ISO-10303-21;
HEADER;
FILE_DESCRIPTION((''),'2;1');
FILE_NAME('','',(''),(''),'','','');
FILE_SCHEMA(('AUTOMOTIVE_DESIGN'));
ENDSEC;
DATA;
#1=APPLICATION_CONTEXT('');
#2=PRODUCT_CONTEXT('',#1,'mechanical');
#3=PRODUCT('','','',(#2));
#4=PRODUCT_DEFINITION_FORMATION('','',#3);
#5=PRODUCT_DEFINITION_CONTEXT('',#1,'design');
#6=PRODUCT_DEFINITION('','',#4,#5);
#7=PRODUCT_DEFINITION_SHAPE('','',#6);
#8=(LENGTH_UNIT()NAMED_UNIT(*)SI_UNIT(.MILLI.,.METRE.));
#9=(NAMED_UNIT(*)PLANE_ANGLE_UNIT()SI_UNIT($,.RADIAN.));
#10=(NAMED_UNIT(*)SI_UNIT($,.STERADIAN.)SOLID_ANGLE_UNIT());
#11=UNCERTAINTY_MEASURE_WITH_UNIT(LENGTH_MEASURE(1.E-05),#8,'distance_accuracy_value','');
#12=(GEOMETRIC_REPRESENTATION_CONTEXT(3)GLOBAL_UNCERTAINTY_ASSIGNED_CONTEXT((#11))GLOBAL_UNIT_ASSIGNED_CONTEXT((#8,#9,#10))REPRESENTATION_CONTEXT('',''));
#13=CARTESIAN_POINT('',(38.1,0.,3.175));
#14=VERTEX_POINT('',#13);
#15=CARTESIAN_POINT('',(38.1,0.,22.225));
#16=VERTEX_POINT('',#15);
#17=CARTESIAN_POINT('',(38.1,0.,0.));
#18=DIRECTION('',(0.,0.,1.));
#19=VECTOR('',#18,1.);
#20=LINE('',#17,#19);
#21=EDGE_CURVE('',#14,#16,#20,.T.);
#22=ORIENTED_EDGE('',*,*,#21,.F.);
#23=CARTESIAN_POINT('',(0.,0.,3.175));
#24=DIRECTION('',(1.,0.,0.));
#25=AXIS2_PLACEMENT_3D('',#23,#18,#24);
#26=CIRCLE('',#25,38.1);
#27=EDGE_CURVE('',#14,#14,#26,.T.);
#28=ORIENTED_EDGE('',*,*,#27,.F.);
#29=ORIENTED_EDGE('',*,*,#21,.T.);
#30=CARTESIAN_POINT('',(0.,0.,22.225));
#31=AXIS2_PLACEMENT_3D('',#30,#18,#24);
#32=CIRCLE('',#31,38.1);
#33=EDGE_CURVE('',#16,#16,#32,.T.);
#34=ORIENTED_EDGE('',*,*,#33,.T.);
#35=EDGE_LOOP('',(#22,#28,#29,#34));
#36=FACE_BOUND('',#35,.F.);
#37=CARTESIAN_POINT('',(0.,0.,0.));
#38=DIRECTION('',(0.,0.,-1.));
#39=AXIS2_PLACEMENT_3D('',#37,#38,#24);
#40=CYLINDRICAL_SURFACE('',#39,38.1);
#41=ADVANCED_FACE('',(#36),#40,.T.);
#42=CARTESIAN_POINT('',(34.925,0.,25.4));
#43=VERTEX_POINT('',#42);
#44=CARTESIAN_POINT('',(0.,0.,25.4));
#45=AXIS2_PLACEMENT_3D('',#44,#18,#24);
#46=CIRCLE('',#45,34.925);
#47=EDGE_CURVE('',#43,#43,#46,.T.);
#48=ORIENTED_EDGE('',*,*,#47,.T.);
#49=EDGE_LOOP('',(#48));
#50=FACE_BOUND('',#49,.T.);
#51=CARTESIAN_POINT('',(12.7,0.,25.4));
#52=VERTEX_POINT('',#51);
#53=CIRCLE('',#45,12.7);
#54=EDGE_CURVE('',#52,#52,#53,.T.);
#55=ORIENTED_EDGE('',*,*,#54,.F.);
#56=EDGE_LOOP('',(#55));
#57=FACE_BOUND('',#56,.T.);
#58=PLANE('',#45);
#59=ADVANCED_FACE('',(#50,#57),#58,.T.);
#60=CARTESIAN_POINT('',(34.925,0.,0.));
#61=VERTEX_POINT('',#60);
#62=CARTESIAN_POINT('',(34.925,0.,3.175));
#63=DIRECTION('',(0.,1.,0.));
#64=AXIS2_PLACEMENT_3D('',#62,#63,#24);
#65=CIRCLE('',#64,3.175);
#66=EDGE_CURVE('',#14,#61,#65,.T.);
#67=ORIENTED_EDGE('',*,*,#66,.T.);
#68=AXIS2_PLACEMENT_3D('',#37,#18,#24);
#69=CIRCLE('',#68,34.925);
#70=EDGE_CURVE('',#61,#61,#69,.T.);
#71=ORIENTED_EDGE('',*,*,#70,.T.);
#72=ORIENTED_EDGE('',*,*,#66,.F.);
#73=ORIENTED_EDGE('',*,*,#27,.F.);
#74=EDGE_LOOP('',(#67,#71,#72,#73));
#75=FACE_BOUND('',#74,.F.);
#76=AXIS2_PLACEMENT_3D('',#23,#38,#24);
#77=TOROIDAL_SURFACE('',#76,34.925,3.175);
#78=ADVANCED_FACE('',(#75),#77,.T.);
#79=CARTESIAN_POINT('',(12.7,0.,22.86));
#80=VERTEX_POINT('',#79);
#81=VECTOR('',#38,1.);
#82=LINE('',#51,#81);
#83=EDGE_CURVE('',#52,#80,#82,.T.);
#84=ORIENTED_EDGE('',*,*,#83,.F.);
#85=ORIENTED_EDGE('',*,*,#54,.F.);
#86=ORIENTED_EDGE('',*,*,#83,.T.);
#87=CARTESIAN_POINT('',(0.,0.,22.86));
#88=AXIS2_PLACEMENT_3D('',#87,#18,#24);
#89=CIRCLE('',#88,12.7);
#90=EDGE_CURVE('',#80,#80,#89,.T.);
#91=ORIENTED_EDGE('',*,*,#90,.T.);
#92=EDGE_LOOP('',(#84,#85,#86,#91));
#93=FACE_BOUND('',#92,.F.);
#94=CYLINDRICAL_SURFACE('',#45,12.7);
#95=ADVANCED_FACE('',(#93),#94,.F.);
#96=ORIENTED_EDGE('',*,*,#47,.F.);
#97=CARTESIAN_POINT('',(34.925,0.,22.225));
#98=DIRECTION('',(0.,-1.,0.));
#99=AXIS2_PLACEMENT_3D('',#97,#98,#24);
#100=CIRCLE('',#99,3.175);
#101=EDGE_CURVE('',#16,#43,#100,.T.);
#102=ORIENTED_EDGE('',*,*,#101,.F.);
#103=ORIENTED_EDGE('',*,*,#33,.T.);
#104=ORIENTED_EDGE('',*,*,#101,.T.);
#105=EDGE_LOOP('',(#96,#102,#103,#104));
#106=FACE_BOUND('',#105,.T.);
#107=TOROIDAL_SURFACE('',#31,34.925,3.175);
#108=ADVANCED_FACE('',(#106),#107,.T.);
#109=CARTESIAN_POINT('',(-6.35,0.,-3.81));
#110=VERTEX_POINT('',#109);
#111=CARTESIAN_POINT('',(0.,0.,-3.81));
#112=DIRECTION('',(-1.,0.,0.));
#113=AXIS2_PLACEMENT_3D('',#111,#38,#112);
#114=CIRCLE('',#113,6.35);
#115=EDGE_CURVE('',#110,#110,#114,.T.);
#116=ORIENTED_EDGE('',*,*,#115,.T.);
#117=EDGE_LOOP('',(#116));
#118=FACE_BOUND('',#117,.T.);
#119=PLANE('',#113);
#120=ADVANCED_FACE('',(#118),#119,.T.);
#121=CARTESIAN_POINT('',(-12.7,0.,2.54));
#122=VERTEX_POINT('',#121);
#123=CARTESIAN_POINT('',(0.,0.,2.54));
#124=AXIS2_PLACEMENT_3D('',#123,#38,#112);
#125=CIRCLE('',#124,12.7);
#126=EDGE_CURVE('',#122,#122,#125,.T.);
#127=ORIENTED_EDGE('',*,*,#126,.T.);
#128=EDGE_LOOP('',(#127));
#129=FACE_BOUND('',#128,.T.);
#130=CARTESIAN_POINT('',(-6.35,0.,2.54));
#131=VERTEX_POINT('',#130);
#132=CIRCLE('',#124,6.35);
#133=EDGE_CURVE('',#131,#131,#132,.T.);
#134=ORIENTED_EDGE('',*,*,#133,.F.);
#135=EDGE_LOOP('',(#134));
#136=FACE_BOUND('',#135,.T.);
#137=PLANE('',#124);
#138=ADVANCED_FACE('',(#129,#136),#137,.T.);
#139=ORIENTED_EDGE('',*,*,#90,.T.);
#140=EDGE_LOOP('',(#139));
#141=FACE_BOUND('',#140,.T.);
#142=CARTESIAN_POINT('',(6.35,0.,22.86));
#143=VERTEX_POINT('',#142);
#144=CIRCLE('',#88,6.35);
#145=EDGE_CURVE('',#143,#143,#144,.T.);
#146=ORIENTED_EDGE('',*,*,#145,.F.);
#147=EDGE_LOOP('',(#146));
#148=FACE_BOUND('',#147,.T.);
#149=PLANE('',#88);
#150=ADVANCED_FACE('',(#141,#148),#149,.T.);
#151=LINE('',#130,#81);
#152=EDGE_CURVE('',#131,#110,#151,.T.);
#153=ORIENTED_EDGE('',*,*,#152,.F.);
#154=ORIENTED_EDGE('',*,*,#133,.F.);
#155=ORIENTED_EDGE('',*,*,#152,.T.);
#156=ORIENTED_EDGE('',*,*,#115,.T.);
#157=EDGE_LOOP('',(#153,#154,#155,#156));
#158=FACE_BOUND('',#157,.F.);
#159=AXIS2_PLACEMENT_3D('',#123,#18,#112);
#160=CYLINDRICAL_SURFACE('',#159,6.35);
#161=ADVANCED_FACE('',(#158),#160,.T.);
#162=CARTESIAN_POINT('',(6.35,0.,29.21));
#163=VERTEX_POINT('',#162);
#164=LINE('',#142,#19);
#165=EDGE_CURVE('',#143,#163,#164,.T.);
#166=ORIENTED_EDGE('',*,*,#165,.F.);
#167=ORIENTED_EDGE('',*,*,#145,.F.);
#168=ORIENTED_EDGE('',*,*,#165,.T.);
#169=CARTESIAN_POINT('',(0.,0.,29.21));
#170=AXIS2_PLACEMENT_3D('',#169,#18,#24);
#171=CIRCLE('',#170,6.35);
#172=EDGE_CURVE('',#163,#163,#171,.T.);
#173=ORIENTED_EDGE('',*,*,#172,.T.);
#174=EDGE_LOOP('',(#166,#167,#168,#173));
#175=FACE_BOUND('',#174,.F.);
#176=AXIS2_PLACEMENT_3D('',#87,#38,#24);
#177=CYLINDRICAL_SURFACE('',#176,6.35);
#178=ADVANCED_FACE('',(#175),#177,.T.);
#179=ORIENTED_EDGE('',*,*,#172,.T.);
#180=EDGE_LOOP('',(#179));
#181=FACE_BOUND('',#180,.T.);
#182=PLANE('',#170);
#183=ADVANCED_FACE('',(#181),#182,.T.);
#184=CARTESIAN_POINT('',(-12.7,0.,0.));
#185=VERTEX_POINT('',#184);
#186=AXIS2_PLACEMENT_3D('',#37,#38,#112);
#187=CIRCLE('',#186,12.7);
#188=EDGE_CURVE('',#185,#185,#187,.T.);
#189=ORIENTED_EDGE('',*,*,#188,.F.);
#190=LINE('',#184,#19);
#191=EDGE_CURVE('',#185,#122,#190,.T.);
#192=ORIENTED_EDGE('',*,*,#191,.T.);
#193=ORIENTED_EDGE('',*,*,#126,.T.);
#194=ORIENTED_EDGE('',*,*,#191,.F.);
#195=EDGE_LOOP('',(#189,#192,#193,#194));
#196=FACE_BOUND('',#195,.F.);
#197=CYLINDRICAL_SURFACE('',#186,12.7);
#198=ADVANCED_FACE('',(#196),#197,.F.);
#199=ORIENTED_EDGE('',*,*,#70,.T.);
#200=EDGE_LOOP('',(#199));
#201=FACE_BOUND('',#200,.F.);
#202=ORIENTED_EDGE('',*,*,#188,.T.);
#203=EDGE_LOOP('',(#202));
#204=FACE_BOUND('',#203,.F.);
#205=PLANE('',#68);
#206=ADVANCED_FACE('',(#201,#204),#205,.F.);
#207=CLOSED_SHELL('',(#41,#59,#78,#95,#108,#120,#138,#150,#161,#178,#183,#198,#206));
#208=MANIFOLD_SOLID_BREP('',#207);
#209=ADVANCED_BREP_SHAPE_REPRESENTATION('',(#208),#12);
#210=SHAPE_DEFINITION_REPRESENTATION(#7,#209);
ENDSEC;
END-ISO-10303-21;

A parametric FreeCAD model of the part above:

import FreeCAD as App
import Part
import Sketcher
from FreeCAD import Vector
Q = App.Units.Quantity


def edges_at(feature, points):
    """Names of the edges that pass closest to the given points."""
    edges = feature.Shape.Edges
    near = lambda p: min(range(len(edges)), key=lambda i: edges[i].distToShape(Part.Vertex(*p))[0])
    return sorted({f"Edge{near(p) + 1}" for p in points})

doc = App.newDocument("Part")
body = doc.addObject("PartDesign::Body", "Body")

# Sketch on XY plane
sketch1 = doc.addObject("Sketcher::SketchObject", "Sketch")
body.addObject(sketch1)
sketch1.AttachmentSupport = (doc.XY_Plane, [""])
sketch1.MapMode = "FlatFace"
sketch1.addGeometry(Part.Circle(Vector(0, 0, 0), Vector(0, 0, 1), 38.1), False)
sketch1.addConstraint([
    Sketcher.Constraint("Coincident", 0, 3, -1, 1),
    Sketcher.Constraint("Diameter", 0, Q("3 in")),
])
pad1 = doc.addObject("PartDesign::Pad", "Pad")
body.addObject(pad1)
pad1.Profile = sketch1
pad1.Length = Q("1 in")

# Sketch on XY plane
sketch2 = doc.addObject("Sketcher::SketchObject", "Sketch001")
body.addObject(sketch2)
sketch2.AttachmentSupport = (doc.XY_Plane, [""])
sketch2.MapMode = "FlatFace"
sketch2.AttachmentOffset = App.Placement(Vector(0, 0, 1 * 25.4), App.Rotation())
sketch2.addGeometry(Part.Circle(Vector(0, 0, 0), Vector(0, 0, 1), 12.7), False)
sketch2.addConstraint([
    Sketcher.Constraint("Coincident", 0, 3, -1, 1),
    Sketcher.Constraint("Diameter", 0, Q("1 in")),
])
pocket1 = doc.addObject("PartDesign::Pocket", "Pocket")
body.addObject(pocket1)
pocket1.Profile = sketch2
pocket1.Length = Q("0.1 in")

# Sketch on XY plane
sketch3 = doc.addObject("Sketcher::SketchObject", "Sketch002")
body.addObject(sketch3)
sketch3.AttachmentSupport = (doc.XY_Plane, [""])
sketch3.MapMode = "FlatFace"
sketch3.addGeometry(Part.Circle(Vector(0, 0, 0), Vector(0, 0, 1), 12.7), False)
sketch3.addConstraint([
    Sketcher.Constraint("Coincident", 0, 3, -1, 1),
    Sketcher.Constraint("Diameter", 0, Q("1 in")),
])
pocket2 = doc.addObject("PartDesign::Pocket", "Pocket001")
body.addObject(pocket2)
pocket2.Profile = sketch3
pocket2.Length = Q("0.1 in")
pocket2.Reversed = True
doc.recompute()

fillet = doc.addObject("PartDesign::Fillet", "Fillet")
body.addObject(fillet)
fillet.Base = (pocket2, edges_at(pocket2, [(-38.1, 0, 25.4), (-38.1, 0, 0)]))
fillet.Radius = Q("0.125 in")

# Sketch on XY plane
sketch4 = doc.addObject("Sketcher::SketchObject", "Sketch003")
body.addObject(sketch4)
sketch4.AttachmentSupport = (doc.XY_Plane, [""])
sketch4.MapMode = "FlatFace"
sketch4.AttachmentOffset = App.Placement(Vector(0, 0, 0.9 * 25.4), App.Rotation())
sketch4.addGeometry(Part.Circle(Vector(0, 0, 0), Vector(0, 0, 1), 6.35), False)
sketch4.addConstraint([
    Sketcher.Constraint("Coincident", 0, 3, -1, 1),
    Sketcher.Constraint("Diameter", 0, Q("0.5 in")),
])
pad2 = doc.addObject("PartDesign::Pad", "Pad001")
body.addObject(pad2)
pad2.Profile = sketch4
pad2.Length = Q("0.25 in")

# Sketch on XY plane
sketch5 = doc.addObject("Sketcher::SketchObject", "Sketch004")
body.addObject(sketch5)
sketch5.AttachmentSupport = (doc.XY_Plane, [""])
sketch5.MapMode = "FlatFace"
sketch5.AttachmentOffset = App.Placement(Vector(0, 0, 0.1 * 25.4), App.Rotation())
sketch5.addGeometry(Part.Circle(Vector(0, 0, 0), Vector(0, 0, 1), 6.35), False)
sketch5.addConstraint([
    Sketcher.Constraint("Coincident", 0, 3, -1, 1),
    Sketcher.Constraint("Diameter", 0, Q("0.5 in")),
])
pad3 = doc.addObject("PartDesign::Pad", "Pad002")
body.addObject(pad3)
pad3.Profile = sketch5
pad3.Length = Q("0.25 in")
pad3.Reversed = True

doc.recompute()
